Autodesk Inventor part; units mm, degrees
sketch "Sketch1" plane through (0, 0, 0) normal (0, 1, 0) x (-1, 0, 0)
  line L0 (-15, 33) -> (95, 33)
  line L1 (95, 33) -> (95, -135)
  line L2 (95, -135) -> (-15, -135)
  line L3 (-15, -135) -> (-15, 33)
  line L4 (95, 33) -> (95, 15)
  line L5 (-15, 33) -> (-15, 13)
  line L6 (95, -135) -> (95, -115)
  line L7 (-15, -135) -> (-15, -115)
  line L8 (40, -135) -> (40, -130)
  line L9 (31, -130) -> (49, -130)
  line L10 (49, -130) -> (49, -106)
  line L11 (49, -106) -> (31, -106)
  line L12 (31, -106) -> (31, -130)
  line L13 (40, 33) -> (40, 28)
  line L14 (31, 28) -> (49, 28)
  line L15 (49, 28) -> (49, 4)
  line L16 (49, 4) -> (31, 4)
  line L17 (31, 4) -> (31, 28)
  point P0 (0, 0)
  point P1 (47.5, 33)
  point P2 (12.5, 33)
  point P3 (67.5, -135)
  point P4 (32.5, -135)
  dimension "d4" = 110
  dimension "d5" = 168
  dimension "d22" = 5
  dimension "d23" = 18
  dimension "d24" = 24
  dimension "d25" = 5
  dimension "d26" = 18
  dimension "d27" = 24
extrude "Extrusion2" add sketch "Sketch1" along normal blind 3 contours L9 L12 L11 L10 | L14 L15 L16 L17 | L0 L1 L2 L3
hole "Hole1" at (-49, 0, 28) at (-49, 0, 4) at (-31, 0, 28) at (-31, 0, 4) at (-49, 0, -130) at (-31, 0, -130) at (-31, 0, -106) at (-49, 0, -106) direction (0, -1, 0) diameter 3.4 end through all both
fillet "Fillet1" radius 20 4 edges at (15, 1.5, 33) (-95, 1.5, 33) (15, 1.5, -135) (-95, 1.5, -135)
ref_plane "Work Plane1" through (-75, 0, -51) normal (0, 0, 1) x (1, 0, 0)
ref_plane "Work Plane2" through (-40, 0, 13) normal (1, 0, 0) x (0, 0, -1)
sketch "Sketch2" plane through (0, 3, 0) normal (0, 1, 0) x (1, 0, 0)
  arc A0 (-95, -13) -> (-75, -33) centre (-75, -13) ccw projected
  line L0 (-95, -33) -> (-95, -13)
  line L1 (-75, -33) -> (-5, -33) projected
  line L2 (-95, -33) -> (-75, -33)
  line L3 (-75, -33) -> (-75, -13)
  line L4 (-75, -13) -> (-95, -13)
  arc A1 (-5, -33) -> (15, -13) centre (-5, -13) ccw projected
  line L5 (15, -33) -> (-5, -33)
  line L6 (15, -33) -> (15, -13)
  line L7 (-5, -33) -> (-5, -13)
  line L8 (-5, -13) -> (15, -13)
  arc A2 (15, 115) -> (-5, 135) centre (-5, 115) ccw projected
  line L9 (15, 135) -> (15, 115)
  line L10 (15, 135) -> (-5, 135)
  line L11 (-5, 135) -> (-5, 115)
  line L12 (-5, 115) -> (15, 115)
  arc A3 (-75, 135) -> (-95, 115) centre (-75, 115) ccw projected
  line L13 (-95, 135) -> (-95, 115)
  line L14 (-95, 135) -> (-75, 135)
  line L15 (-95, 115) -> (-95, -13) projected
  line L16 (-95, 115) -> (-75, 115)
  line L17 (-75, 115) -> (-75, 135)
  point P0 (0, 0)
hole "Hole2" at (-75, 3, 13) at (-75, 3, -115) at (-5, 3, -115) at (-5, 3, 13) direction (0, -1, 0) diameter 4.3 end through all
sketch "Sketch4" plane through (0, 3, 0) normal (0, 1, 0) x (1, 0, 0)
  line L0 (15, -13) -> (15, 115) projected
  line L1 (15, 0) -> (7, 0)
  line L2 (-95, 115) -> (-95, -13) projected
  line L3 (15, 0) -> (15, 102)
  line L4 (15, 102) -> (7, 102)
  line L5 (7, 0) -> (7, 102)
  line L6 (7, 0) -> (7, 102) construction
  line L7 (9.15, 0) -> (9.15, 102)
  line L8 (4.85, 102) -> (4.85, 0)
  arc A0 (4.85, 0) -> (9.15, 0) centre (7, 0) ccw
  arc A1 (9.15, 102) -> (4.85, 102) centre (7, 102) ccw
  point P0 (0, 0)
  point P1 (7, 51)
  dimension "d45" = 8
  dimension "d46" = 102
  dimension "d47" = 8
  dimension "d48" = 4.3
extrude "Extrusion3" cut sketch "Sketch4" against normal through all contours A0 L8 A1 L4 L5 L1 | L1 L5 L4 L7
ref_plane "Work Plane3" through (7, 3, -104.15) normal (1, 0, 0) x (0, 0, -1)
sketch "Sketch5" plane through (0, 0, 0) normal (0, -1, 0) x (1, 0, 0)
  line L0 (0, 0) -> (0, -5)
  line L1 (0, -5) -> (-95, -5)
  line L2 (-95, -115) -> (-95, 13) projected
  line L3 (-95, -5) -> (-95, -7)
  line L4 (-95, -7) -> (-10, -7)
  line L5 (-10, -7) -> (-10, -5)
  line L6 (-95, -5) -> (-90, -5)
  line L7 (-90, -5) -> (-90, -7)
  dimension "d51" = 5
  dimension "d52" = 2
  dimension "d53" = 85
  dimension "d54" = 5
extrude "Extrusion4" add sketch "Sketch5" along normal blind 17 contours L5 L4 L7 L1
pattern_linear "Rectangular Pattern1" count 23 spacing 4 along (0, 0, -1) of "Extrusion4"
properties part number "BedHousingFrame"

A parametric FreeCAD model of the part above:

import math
import FreeCAD as App
import Part
import Sketcher

V = App.Vector
Q = App.Units.Quantity


def edges_at(feature, points):
    """Names of the edges that pass closest to the given points."""
    edges = feature.Shape.Edges
    near = lambda p: min(range(len(edges)), key=lambda i: edges[i].distToShape(Part.Vertex(*p))[0])
    return sorted({f"Edge{near(p) + 1}" for p in points})


def add_polygon(sketch, points):
    """Adds a closed chain of lines whose ends are joined by coincident constraints."""
    first, n = sketch.GeometryCount, len(points)
    for a, b in zip(points, points[1:] + points[:1]):
        sketch.addGeometry(Part.LineSegment(App.Vector(*a, 0), App.Vector(*b, 0)), False)
    for i in range(n):
        sketch.addConstraint(Sketcher.Constraint("Coincident", first + i, 2, first + (i + 1) % n, 1))

doc = App.newDocument("Part")
body = doc.addObject("PartDesign::Body", "Body")

# Sketch on XZ plane
sketch1 = body.newObject("Sketcher::SketchObject", "Sketch")
sketch1.AttachmentSupport = (doc.getObject("XZ_Plane"), [""])
sketch1.MapMode = "FlatFace"
add_polygon(sketch1, [(-40, 33), (15, 33), (15, -135), (-40, -135), (-95, -135), (-95, 33)])  # lines 0-5
sketch1.addConstraint([
    Sketcher.Constraint("Horizontal", 0),
    Sketcher.Constraint("Vertical", 1),
    Sketcher.Constraint("Horizontal", 2),
    Sketcher.Constraint("Horizontal", 3),
    Sketcher.Constraint("Vertical", 4),
    Sketcher.Constraint("Horizontal", 5),
    Sketcher.Constraint("Vertical", 2, 2, 5, 2),
    Sketcher.Constraint("Equal", 2, 3),
    Sketcher.Constraint("DistanceY", 1, 2, 1, 1, Q("168 mm")),
    Sketcher.Constraint("DistanceX", 3, 2, 1, 2, Q("110 mm")),
    Sketcher.Constraint("DistanceX", -1, 1, 0, 2, Q("15 mm")),
    Sketcher.Constraint("DistanceY", -1, 1, 0, 2, Q("33 mm")),
])
pad1 = body.newObject("PartDesign::Pad", "Pad")
pad1.Profile = sketch1
pad1.Length = 3
pad1.Reversed = True

# Sketch on XZ plane
sketch2 = body.newObject("Sketcher::SketchObject", "Sketch001")
sketch2.AttachmentSupport = (doc.getObject("XZ_Plane"), [""])
sketch2.MapMode = "FlatFace"
sketch2.addGeometry([
    Part.Circle(V(-49, 28, 0), V(0, 0, 1), 1.7),  # 0
    Part.Circle(V(-49, 4, 0), V(0, 0, 1), 1.7),  # 1
    Part.Circle(V(-31, 28, 0), V(0, 0, 1), 1.7),  # 2
    Part.Circle(V(-31, 4, 0), V(0, 0, 1), 1.7),  # 3
    Part.Circle(V(-49, -130, 0), V(0, 0, 1), 1.7),  # 4
    Part.Circle(V(-31, -130, 0), V(0, 0, 1), 1.7),  # 5
    Part.Circle(V(-31, -106, 0), V(0, 0, 1), 1.7),  # 6
    Part.Circle(V(-49, -106, 0), V(0, 0, 1), 1.7),  # 7
], False)
sketch2.addConstraint([
    Sketcher.Constraint("Equal", 0, 1),
    Sketcher.Constraint("Equal", 1, 2),
    Sketcher.Constraint("Equal", 2, 3),
    Sketcher.Constraint("Equal", 3, 4),
    Sketcher.Constraint("Equal", 4, 5),
    Sketcher.Constraint("Equal", 5, 6),
    Sketcher.Constraint("Equal", 6, 7),
    Sketcher.Constraint("Horizontal", 0, 3, 2, 3),
    Sketcher.Constraint("Horizontal", 1, 3, 3, 3),
    Sketcher.Constraint("Horizontal", 4, 3, 5, 3),
    Sketcher.Constraint("Horizontal", 6, 3, 7, 3),
    Sketcher.Constraint("Vertical", 0, 3, 1, 3),
    Sketcher.Constraint("Vertical", 2, 3, 3, 3),
    Sketcher.Constraint("Vertical", 1, 3, 4, 3),
    Sketcher.Constraint("Vertical", 3, 3, 5, 3),
    Sketcher.Constraint("Vertical", 5, 3, 6, 3),
    Sketcher.Constraint("Vertical", 4, 3, 7, 3),
    Sketcher.Constraint("Diameter", 0, Q("3.4 mm")),
    Sketcher.Constraint("DistanceX", 0, 3, -1, 1, Q("49 mm")),
    Sketcher.Constraint("DistanceY", -1, 1, 0, 3, Q("28 mm")),
    Sketcher.Constraint("DistanceY", -1, 1, 1, 3, Q("4 mm")),
    Sketcher.Constraint("DistanceX", 2, 3, -1, 1, Q("31 mm")),
    Sketcher.Constraint("DistanceY", 4, 3, -1, 1, Q("130 mm")),
    Sketcher.Constraint("DistanceY", 6, 3, -1, 1, Q("106 mm")),
])
doc.recompute()
hole = body.newObject("PartDesign::Hole", "Hole")
hole.Profile = sketch2
hole.ThreadType = "None"
hole.Diameter = 3.4
hole.DepthType = "ThroughAll"
doc.recompute()

fillet = body.newObject("PartDesign::Fillet", "Fillet")
fillet.Base = (hole, edges_at(hole, [
    (15, 1.5, 33),
    (-95, 1.5, 33),
    (15, 1.5, -135),
    (-95, 1.5, -135),
]))
fillet.Radius = 20

# Sketch on XZ plane
sketch3 = body.newObject("Sketcher::SketchObject", "Sketch002")
sketch3.AttachmentSupport = (doc.getObject("XZ_Plane"), [""])
sketch3.MapMode = "FlatFace"
sketch3.AttachmentOffset = App.Placement(V(0, 0, -3), App.Rotation())
sketch3.addGeometry([
    Part.Circle(V(-75, 13, 0), V(0, 0, 1), 2.1),
    Part.Circle(V(-75, -115, 0), V(0, 0, 1), 2.1),
    Part.Circle(V(-5, -115, 0), V(0, 0, 1), 2.1),
    Part.Circle(V(-5, 13, 0), V(0, 0, 1), 2.1),
], False)
sketch3.addConstraint([
    Sketcher.Constraint("Equal", 0, 1),
    Sketcher.Constraint("Equal", 1, 2),
    Sketcher.Constraint("Equal", 2, 3),
    Sketcher.Constraint("Horizontal", 1, 3, 2, 3),
    Sketcher.Constraint("Horizontal", 0, 3, 3, 3),
    Sketcher.Constraint("Vertical", 0, 3, 1, 3),
    Sketcher.Constraint("Vertical", 2, 3, 3, 3),
    Sketcher.Constraint("Diameter", 0, Q("4.3 mm")),
    Sketcher.Constraint("DistanceX", 0, 3, -1, 1, Q("75 mm")),
    Sketcher.Constraint("DistanceY", -1, 1, 0, 3, Q("13 mm")),
    Sketcher.Constraint("DistanceY", 1, 3, -1, 1, Q("115 mm")),
    Sketcher.Constraint("DistanceX", 2, 3, -1, 1, Q("5 mm")),
])
doc.recompute()
hole2 = body.newObject("PartDesign::Hole", "Hole001")
hole2.Profile = sketch3
hole2.ThreadType = "None"
hole2.Diameter = 4.3
hole2.DepthType = "ThroughAll"
hole2.Reversed = True

# Sketch on XZ plane
sketch4 = body.newObject("Sketcher::SketchObject", "Sketch003")
sketch4.AttachmentSupport = (doc.getObject("XZ_Plane"), [""])
sketch4.MapMode = "FlatFace"
sketch4.AttachmentOffset = App.Placement(V(0, 0, -3), App.Rotation())
sketch4.addGeometry([
    Part.ArcOfCircle(Part.Circle(V(7, 0, 0), V(0, 0, 1), 2.2), math.radians(0), math.radians(180)),
    Part.LineSegment(V(9.2, 0, 0), V(9.2, -102, 0)),
    Part.ArcOfCircle(Part.Circle(V(7, -102, 0), V(0, 0, 1), 2.2), math.radians(180), math.radians(360)),
    Part.LineSegment(V(4.8, -102, 0), V(4.8, 0, 0)),
], False)
sketch4.addConstraint([
    Sketcher.Constraint("Tangent", 0, 1, 1, 1),
    Sketcher.Constraint("Tangent", 1, 2, 2, 2),
    Sketcher.Constraint("Tangent", 2, 1, 3, 1),
    Sketcher.Constraint("Tangent", 3, 2, 0, 2),
    Sketcher.Constraint("Vertical", 1),
    Sketcher.Constraint("Vertical", 3),
    Sketcher.Constraint("PointOnObject", 0, 3, -1),
    Sketcher.Constraint("DistanceY", 1, 2, 1, 1, Q("102 mm")),
    Sketcher.Constraint("Radius", 0, Q("2.15 mm")),
    Sketcher.Constraint("DistanceX", -1, 1, 0, 3, Q("7 mm")),
])
pocket1 = body.newObject("PartDesign::Pocket", "Pocket")
pocket1.Profile = sketch4
pocket1.Type = "ThroughAll"
pocket1.Reversed = True

# Sketch on XZ plane
sketch5 = body.newObject("Sketcher::SketchObject", "Sketch004")
sketch5.AttachmentSupport = (doc.getObject("XZ_Plane"), [""])
sketch5.MapMode = "FlatFace"
add_polygon(sketch5, [(-10, -7), (-10, -5), (-90, -5), (-90, -7)])  # lines 0-3
sketch5.addConstraint([
    Sketcher.Constraint("Vertical", 0),
    Sketcher.Constraint("Horizontal", 1),
    Sketcher.Constraint("Vertical", 2),
    Sketcher.Constraint("Horizontal", 3),
    Sketcher.Constraint("DistanceY", 0, 1, 0, 2, Q("2 mm")),
    Sketcher.Constraint("DistanceY", 0, 2, -1, 1, Q("5 mm")),
    Sketcher.Constraint("DistanceX", 1, 2, 1, 1, Q("80 mm")),
    Sketcher.Constraint("DistanceX", 0, 2, -1, 1, Q("10 mm")),
])
pad2 = body.newObject("PartDesign::Pad", "Pad001")
pad2.Profile = sketch5
pad2.Length = 17
doc.recompute()

linearpattern = body.newObject("PartDesign::LinearPattern", "LinearPattern")
linearpattern.Originals = [pad2]
linearpattern.Direction = (doc.getObject("Z_Axis"), [""])
linearpattern.Mode = "offset"
linearpattern.Offset = 4
linearpattern.Occurrences = 23
linearpattern.Reversed = True
body.Tip = linearpattern

doc.recompute()
